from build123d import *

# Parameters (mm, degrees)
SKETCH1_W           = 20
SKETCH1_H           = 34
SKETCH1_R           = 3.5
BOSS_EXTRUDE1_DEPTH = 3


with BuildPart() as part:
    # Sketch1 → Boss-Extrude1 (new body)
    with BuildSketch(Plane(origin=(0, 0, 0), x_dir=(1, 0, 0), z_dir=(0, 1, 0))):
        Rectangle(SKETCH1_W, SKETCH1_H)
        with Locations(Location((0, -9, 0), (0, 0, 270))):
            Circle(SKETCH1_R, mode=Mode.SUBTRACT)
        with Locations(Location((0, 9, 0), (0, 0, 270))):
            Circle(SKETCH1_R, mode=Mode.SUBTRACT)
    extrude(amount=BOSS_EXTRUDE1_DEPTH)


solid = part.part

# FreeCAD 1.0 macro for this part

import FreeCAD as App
import Part
import Sketcher
from FreeCAD import Vector

doc = App.newDocument("Part")
body = doc.addObject("PartDesign::Body", "Body")

sketch1 = body.newObject("Sketcher::SketchObject", "Sketch")
sketch1.AttachmentSupport = (doc.getObject("XZ_Plane"), [""])
sketch1.MapMode = "FlatFace"
sketch1.addGeometry([
    Part.LineSegment(Vector(-10, -17, 0), Vector(-10, 17, 0)),
    Part.LineSegment(Vector(-10, 17, 0), Vector(10, 17, 0)),
    Part.LineSegment(Vector(10, 17, 0), Vector(10, -17, 0)),
    Part.LineSegment(Vector(10, -17, 0), Vector(-10, -17, 0)),
    Part.Circle(Vector(0, 9, 0), Vector(0, 0, 1), 3.5),
    Part.Circle(Vector(0, -9, 0), Vector(0, 0, 1), 3.5),
], False)
sketch1.addConstraint([
    Sketcher.Constraint("Coincident", 0, 2, 1, 1),
    Sketcher.Constraint("Coincident", 1, 2, 2, 1),
    Sketcher.Constraint("Coincident", 2, 2, 3, 1),
    Sketcher.Constraint("Coincident", 3, 2, 0, 1),
    Sketcher.Constraint("Vertical", 0),
    Sketcher.Constraint("Horizontal", 1),
    Sketcher.Constraint("Vertical", 2),
    Sketcher.Constraint("Horizontal", 3),
    Sketcher.Constraint("Equal", 4, 5),
    Sketcher.Constraint("Symmetric", 4, 3, 5, 3, -1, 1),
    Sketcher.Constraint("Symmetric", 0, 2, 2, 2, -1, 1),
    Sketcher.Constraint("PointOnObject", 4, 3, -2),
    Sketcher.Constraint("Diameter", 4, 7.0),
    Sketcher.Constraint("DistanceX", 1, 1, 1, 2, 20.0),
    Sketcher.Constraint("DistanceY", 0, 1, 0, 2, 34.0),
    Sketcher.Constraint("DistanceY", -1, 1, 4, 3, 9.0),
])
pad1 = body.newObject("PartDesign::Pad", "Pad")
pad1.Profile = sketch1
pad1.Length = 3
pad1.Reversed = True

doc.recompute()
